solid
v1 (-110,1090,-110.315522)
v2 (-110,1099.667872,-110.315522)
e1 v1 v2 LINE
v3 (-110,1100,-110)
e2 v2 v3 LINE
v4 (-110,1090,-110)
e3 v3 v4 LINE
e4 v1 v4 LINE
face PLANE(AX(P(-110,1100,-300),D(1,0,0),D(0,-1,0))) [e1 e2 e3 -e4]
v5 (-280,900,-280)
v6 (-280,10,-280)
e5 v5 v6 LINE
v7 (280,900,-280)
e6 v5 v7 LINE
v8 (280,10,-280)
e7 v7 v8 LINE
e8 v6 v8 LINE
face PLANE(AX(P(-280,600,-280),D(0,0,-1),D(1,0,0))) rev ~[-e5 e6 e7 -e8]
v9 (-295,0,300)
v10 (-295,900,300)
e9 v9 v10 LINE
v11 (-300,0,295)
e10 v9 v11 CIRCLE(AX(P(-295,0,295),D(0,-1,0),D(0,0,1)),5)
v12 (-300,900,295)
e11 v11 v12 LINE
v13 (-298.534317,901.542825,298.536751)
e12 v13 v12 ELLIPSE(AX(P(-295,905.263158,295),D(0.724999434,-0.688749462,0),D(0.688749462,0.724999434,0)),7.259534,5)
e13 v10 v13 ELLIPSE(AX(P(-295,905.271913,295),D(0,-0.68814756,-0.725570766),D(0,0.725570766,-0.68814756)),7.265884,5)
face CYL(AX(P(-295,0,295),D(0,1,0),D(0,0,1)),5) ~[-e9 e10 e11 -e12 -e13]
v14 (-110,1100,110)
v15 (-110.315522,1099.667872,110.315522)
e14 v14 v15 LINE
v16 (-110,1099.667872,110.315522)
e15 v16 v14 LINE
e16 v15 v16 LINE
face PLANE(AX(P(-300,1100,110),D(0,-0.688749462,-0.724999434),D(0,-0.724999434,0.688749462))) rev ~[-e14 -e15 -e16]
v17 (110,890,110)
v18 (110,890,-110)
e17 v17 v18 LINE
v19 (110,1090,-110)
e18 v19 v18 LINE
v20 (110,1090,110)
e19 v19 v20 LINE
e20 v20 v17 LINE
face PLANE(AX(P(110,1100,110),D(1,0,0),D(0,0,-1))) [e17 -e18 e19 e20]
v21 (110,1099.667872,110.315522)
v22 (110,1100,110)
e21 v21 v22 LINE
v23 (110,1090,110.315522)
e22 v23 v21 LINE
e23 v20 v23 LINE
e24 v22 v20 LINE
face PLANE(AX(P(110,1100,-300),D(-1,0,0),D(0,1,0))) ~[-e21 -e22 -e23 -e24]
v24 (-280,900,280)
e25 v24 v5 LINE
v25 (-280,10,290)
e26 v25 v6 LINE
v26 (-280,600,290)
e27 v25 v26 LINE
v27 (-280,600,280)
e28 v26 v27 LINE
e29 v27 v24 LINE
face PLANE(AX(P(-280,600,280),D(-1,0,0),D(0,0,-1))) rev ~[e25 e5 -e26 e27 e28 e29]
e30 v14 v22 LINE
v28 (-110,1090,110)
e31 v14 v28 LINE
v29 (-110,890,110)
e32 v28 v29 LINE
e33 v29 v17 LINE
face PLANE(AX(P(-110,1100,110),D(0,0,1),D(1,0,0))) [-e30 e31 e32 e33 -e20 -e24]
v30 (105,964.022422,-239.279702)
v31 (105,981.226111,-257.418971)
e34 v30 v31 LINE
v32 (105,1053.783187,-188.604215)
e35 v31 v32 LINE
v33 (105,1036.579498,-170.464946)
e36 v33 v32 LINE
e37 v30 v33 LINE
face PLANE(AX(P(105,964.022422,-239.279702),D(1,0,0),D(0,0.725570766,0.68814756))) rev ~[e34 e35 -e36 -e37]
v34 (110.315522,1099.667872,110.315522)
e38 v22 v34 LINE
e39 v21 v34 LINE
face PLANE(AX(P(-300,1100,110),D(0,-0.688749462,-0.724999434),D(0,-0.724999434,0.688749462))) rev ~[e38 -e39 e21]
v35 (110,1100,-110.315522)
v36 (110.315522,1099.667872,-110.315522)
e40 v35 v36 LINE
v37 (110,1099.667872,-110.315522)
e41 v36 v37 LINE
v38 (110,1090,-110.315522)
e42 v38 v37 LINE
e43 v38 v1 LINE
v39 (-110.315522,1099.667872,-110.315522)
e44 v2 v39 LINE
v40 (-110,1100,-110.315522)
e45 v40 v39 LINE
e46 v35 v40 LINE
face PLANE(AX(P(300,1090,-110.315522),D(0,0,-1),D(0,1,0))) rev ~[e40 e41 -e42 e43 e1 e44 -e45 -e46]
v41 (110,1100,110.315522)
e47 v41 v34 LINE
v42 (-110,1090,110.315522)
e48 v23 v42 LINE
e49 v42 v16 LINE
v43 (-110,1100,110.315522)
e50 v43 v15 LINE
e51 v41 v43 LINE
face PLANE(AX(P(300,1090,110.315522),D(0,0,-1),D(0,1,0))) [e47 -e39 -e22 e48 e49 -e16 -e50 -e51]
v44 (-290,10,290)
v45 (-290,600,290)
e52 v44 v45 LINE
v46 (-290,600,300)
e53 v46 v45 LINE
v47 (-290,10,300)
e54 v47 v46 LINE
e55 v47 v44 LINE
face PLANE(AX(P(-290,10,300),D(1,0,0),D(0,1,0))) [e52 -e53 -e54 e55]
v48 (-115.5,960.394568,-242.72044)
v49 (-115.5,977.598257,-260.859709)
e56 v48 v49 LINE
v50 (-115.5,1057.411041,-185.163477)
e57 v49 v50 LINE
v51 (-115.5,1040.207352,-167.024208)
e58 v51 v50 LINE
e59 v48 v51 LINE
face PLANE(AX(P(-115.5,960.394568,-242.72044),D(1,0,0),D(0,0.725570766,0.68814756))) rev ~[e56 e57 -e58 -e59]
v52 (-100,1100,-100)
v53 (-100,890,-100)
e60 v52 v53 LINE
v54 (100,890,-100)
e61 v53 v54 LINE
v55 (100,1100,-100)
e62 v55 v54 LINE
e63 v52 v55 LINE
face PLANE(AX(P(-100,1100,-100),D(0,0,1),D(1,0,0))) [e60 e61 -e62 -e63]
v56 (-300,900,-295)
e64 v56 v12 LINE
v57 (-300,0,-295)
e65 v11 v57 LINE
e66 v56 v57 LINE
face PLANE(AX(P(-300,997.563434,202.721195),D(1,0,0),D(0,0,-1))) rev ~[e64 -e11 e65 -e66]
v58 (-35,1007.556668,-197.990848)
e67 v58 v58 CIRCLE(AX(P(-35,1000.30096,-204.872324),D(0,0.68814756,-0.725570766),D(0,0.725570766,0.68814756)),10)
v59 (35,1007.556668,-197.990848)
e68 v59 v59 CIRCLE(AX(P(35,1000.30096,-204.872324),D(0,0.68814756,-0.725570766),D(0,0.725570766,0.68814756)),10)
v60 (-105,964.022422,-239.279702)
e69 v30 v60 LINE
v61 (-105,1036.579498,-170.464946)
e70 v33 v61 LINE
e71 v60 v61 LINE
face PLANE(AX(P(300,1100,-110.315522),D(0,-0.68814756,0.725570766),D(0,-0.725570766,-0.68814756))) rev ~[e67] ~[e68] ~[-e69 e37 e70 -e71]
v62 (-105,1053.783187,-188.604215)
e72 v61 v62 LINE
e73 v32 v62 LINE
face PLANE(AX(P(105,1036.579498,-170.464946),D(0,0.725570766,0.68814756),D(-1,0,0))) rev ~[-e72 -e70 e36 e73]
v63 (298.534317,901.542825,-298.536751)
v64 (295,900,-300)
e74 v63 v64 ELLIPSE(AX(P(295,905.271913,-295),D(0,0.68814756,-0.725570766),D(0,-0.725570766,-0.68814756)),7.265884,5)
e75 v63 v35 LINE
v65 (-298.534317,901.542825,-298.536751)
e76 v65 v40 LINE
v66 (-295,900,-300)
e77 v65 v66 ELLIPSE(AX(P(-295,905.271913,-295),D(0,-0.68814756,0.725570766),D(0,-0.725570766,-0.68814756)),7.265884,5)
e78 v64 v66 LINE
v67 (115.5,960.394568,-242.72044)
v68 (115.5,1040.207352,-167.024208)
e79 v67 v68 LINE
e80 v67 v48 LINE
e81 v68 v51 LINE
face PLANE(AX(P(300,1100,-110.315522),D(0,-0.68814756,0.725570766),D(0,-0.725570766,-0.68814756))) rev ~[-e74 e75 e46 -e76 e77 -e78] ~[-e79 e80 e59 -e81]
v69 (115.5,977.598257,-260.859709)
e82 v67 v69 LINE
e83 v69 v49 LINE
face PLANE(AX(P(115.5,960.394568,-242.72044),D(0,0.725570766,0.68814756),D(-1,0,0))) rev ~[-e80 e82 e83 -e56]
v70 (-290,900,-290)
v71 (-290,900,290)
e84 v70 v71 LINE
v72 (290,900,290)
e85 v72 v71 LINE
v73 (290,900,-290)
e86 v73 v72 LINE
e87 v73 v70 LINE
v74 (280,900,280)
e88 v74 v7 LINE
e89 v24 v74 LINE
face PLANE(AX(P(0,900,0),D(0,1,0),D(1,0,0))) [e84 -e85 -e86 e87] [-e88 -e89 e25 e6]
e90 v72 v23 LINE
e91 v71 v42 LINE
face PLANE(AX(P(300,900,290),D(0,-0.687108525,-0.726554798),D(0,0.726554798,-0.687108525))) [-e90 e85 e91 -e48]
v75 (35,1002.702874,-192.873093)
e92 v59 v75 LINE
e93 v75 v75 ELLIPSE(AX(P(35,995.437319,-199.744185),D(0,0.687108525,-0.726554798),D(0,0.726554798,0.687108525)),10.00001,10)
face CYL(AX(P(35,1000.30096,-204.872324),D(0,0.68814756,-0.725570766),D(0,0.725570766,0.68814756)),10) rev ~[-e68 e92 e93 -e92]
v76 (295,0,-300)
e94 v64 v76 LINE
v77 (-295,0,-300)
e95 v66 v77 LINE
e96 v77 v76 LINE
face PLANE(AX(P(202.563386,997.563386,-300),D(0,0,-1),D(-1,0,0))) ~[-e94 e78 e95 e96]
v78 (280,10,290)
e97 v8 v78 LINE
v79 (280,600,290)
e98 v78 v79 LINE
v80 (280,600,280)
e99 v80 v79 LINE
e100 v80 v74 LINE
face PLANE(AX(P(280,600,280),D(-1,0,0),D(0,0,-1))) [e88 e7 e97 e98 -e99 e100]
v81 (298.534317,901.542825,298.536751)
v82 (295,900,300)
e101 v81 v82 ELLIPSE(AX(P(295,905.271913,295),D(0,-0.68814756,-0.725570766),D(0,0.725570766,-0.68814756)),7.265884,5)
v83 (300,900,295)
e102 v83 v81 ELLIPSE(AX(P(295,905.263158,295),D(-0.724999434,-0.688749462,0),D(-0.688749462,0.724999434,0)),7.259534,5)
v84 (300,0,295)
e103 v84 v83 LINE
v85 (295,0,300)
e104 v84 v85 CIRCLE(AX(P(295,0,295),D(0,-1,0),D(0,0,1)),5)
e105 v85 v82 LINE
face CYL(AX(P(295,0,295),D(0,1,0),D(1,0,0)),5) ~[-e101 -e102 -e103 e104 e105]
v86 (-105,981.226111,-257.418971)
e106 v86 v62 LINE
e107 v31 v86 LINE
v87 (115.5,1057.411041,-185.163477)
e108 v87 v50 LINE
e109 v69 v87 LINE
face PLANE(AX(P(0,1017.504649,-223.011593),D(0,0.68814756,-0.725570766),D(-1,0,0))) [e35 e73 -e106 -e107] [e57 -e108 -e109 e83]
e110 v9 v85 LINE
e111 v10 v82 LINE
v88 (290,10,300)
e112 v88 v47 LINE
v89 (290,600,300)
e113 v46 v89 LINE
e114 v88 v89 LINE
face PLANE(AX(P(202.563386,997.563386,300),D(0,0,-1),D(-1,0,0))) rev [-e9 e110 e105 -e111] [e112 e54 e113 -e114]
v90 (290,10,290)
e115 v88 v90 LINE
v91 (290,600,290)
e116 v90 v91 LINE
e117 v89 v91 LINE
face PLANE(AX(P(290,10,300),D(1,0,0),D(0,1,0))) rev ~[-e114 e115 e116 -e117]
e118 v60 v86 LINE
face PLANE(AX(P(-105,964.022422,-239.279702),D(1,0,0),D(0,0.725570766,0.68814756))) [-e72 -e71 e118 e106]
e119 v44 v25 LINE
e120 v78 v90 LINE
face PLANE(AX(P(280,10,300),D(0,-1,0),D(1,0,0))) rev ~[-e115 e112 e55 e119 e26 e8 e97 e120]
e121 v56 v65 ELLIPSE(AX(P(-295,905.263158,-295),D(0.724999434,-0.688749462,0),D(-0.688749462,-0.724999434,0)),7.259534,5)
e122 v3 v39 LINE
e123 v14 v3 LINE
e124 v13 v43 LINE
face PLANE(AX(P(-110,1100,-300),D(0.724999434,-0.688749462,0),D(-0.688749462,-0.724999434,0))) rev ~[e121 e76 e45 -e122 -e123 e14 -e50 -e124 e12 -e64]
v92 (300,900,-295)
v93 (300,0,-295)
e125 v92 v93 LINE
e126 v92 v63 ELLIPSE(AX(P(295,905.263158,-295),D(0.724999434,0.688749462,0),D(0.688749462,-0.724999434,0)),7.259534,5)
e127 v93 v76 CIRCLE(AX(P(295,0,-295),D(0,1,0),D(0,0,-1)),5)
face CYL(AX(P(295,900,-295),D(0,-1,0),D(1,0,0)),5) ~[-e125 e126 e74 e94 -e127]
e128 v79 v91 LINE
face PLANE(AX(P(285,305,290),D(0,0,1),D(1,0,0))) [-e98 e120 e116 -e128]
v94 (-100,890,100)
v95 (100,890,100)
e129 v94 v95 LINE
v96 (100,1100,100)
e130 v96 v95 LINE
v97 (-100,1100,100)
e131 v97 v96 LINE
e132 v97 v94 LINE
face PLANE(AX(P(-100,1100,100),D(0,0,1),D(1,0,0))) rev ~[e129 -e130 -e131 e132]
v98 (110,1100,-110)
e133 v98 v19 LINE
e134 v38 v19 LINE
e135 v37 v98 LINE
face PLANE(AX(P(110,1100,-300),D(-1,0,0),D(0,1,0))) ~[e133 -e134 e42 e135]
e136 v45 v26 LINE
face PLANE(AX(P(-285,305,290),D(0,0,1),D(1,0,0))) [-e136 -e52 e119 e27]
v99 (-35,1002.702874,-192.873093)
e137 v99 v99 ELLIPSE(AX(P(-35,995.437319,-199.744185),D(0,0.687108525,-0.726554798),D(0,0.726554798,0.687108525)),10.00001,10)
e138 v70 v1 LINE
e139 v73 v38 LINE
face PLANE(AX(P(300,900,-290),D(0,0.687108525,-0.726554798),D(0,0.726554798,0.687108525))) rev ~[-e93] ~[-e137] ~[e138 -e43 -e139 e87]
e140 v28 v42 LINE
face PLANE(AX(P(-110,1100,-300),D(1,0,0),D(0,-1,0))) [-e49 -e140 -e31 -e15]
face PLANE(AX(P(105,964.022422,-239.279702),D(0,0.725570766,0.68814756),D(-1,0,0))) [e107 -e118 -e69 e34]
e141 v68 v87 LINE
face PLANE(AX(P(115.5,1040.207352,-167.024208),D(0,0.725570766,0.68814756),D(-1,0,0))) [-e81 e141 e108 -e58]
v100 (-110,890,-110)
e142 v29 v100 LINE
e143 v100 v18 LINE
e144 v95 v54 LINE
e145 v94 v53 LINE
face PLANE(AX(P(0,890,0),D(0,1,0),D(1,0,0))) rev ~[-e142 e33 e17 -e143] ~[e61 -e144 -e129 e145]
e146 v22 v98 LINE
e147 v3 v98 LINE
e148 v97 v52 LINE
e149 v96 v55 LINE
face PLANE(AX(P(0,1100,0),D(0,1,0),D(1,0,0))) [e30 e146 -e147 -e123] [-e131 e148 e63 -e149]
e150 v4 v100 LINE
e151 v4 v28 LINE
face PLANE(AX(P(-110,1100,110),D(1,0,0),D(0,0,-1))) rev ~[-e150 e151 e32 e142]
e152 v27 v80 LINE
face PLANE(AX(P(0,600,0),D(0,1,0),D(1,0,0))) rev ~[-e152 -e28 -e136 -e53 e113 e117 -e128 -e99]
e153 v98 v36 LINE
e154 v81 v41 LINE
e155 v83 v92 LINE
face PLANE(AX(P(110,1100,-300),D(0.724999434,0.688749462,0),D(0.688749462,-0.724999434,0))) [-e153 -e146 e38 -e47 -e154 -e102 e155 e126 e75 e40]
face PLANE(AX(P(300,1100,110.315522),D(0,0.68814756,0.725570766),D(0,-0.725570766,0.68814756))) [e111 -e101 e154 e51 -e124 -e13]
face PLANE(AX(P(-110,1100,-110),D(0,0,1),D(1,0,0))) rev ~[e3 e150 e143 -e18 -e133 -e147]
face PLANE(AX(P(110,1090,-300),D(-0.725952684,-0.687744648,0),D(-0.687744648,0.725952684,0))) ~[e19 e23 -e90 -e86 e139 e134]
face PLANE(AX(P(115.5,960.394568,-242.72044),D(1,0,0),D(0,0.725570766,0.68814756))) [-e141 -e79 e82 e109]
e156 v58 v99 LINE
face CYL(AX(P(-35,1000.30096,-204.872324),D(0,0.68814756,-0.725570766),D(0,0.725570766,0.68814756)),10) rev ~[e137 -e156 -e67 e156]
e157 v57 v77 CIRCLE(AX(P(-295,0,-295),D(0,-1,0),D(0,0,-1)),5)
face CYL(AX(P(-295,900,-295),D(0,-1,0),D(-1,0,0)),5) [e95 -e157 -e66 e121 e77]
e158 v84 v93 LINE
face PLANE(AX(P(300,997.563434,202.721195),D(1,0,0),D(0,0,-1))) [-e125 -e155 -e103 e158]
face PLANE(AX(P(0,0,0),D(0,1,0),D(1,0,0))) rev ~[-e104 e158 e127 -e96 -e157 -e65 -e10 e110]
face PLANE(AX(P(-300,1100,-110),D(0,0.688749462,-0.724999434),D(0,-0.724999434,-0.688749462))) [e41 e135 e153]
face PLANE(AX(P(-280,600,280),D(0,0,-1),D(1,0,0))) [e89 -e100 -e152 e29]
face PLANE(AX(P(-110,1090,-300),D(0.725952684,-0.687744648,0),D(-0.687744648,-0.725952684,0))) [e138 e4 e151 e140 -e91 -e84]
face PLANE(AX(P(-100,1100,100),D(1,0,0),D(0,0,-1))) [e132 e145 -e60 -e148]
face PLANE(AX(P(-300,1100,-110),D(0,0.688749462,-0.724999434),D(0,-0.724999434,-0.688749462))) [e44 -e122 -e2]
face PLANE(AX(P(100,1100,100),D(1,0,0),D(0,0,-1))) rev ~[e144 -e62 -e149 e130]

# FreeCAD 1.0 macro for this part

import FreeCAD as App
import Part
import Sketcher


def edges_at(feature, points):
    """Names of the edges that pass closest to the given points."""
    edges = feature.Shape.Edges
    near = lambda p: min(range(len(edges)), key=lambda i: edges[i].distToShape(Part.Vertex(*p))[0])
    return sorted({f"Edge{near(p) + 1}" for p in points})

doc = App.newDocument("Part")
body = doc.addObject("PartDesign::Body", "Body")

# Sketch on XZ plane
sketch1 = body.newObject("Sketcher::SketchObject", "Sketch")
sketch1.AttachmentSupport = (doc.getObject("XZ_Plane"), [""])
sketch1.MapMode = "FlatFace"
sketch1.addGeometry([
    Part.LineSegment(App.Vector(-300, -300, 0), App.Vector(-300, 300, 0)),
    Part.LineSegment(App.Vector(-300, 300, 0), App.Vector(300, 300, 0)),
    Part.LineSegment(App.Vector(300, 300, 0), App.Vector(300, -300, 0)),
    Part.LineSegment(App.Vector(300, -300, 0), App.Vector(-300, -300, 0)),
], False)
sketch1.addConstraint([
    Sketcher.Constraint("Coincident", 0, 2, 1, 1),
    Sketcher.Constraint("Coincident", 1, 2, 2, 1),
    Sketcher.Constraint("Coincident", 2, 2, 3, 1),
    Sketcher.Constraint("Coincident", 3, 2, 0, 1),
    Sketcher.Constraint("Vertical", 0),
    Sketcher.Constraint("Horizontal", 1),
    Sketcher.Constraint("Vertical", 2),
    Sketcher.Constraint("Horizontal", 3),
    Sketcher.Constraint("Symmetric", 0, 2, 2, 2, -1, 1),
    Sketcher.Constraint("Equal", 3, 0),
    Sketcher.Constraint("DistanceX", 1, 1, 1, 2, 600.0),
])
pad1 = body.newObject("PartDesign::Pad", "Pad")
pad1.Profile = sketch1
pad1.Length = 10
pad1.Reversed = True

# Sketch on XZ plane
sketch2 = body.newObject("Sketcher::SketchObject", "Sketch001")
sketch2.AttachmentSupport = (doc.getObject("XZ_Plane"), [""])
sketch2.MapMode = "FlatFace"
sketch2.AttachmentOffset = App.Placement(App.Vector(0, 0, -10), App.Rotation())
sketch2.addGeometry([
    Part.LineSegment(App.Vector(-300, -300, 0), App.Vector(-300, 300, 0)),  # 0
    Part.LineSegment(App.Vector(-300, 300, 0), App.Vector(300, 300, 0)),  # 1
    Part.LineSegment(App.Vector(300, 300, 0), App.Vector(300, -300, 0)),  # 2
    Part.LineSegment(App.Vector(300, -300, 0), App.Vector(-300, -300, 0)),  # 3
    Part.LineSegment(App.Vector(280, 280, 0), App.Vector(-280, 280, 0)),  # 4
    Part.LineSegment(App.Vector(-280, 280, 0), App.Vector(-280, -280, 0)),  # 5
    Part.LineSegment(App.Vector(-280, -280, 0), App.Vector(280, -280, 0)),  # 6
    Part.LineSegment(App.Vector(280, -280, 0), App.Vector(280, 280, 0)),  # 7
], False)
sketch2.addConstraint([
    Sketcher.Constraint("Coincident", 0, 2, 1, 1),
    Sketcher.Constraint("Coincident", 1, 2, 2, 1),
    Sketcher.Constraint("Coincident", 2, 2, 3, 1),
    Sketcher.Constraint("Coincident", 3, 2, 0, 1),
    Sketcher.Constraint("Coincident", 4, 2, 5, 1),
    Sketcher.Constraint("Coincident", 5, 2, 6, 1),
    Sketcher.Constraint("Coincident", 6, 2, 7, 1),
    Sketcher.Constraint("Coincident", 7, 2, 4, 1),
    Sketcher.Constraint("Vertical", 0),
    Sketcher.Constraint("Horizontal", 1),
    Sketcher.Constraint("Vertical", 2),
    Sketcher.Constraint("Horizontal", 3),
    Sketcher.Constraint("Horizontal", 4),
    Sketcher.Constraint("Vertical", 5),
    Sketcher.Constraint("Horizontal", 6),
    Sketcher.Constraint("Vertical", 7),
    Sketcher.Constraint("Symmetric", 0, 2, 2, 2, -1, 1),
    Sketcher.Constraint("Symmetric", 4, 2, 6, 2, -1, 1),
    Sketcher.Constraint("Equal", 3, 0),
    Sketcher.Constraint("Equal", 6, 5),
    Sketcher.Constraint("DistanceX", 1, 1, 1, 2, 600.0),
    Sketcher.Constraint("DistanceX", 4, 2, 4, 1, 560.0),
])
pad2 = body.newObject("PartDesign::Pad", "Pad001")
pad2.Profile = sketch2
pad2.Length = 590
pad2.Reversed = True

# Sketch on XZ plane
sketch3 = body.newObject("Sketcher::SketchObject", "Sketch002")
sketch3.AttachmentSupport = (doc.getObject("XZ_Plane"), [""])
sketch3.MapMode = "FlatFace"
sketch3.AttachmentOffset = App.Placement(App.Vector(0, 0, -600), App.Rotation())
sketch3.addGeometry([
    Part.LineSegment(App.Vector(-280, 280, 0), App.Vector(-280, 300, 0)),
    Part.LineSegment(App.Vector(-280, 300, 0), App.Vector(280, 300, 0)),
    Part.LineSegment(App.Vector(280, 300, 0), App.Vector(280, 280, 0)),
    Part.LineSegment(App.Vector(280, 280, 0), App.Vector(-280, 280, 0)),
], False)
sketch3.addConstraint([
    Sketcher.Constraint("Coincident", 0, 2, 1, 1),
    Sketcher.Constraint("Coincident", 1, 2, 2, 1),
    Sketcher.Constraint("Coincident", 2, 2, 3, 1),
    Sketcher.Constraint("Coincident", 3, 2, 0, 1),
    Sketcher.Constraint("Vertical", 0),
    Sketcher.Constraint("Horizontal", 1),
    Sketcher.Constraint("Vertical", 2),
    Sketcher.Constraint("Horizontal", 3),
    Sketcher.Constraint("DistanceX", 1, 1, 1, 2, 560.0),
    Sketcher.Constraint("DistanceY", 0, 1, 0, 2, 20.0),
    Sketcher.Constraint("DistanceX", 0, 2, -1, 1, 280.0),
    Sketcher.Constraint("DistanceY", -1, 1, 0, 2, 300.0),
])
pocket1 = body.newObject("PartDesign::Pocket", "Pocket")
pocket1.Profile = sketch3
pocket1.Length = 590
pocket1.Reversed = True

# Sketch on XZ plane
sketch4 = body.newObject("Sketcher::SketchObject", "Sketch003")
sketch4.AttachmentSupport = (doc.getObject("XZ_Plane"), [""])
sketch4.MapMode = "FlatFace"
sketch4.AttachmentOffset = App.Placement(App.Vector(0, 0, -600), App.Rotation())
sketch4.addGeometry([
    Part.LineSegment(App.Vector(-300, -300, 0), App.Vector(-300, 300, 0)),  # 0
    Part.LineSegment(App.Vector(-300, 300, 0), App.Vector(300, 300, 0)),  # 1
    Part.LineSegment(App.Vector(300, 300, 0), App.Vector(300, -300, 0)),  # 2
    Part.LineSegment(App.Vector(300, -300, 0), App.Vector(-300, -300, 0)),  # 3
    Part.LineSegment(App.Vector(280, 280, 0), App.Vector(-280, 280, 0)),  # 4
    Part.LineSegment(App.Vector(-280, 280, 0), App.Vector(-280, -280, 0)),  # 5
    Part.LineSegment(App.Vector(-280, -280, 0), App.Vector(280, -280, 0)),  # 6
    Part.LineSegment(App.Vector(280, -280, 0), App.Vector(280, 280, 0)),  # 7
], False)
sketch4.addConstraint([
    Sketcher.Constraint("Coincident", 0, 2, 1, 1),
    Sketcher.Constraint("Coincident", 1, 2, 2, 1),
    Sketcher.Constraint("Coincident", 2, 2, 3, 1),
    Sketcher.Constraint("Coincident", 3, 2, 0, 1),
    Sketcher.Constraint("Coincident", 4, 2, 5, 1),
    Sketcher.Constraint("Coincident", 5, 2, 6, 1),
    Sketcher.Constraint("Coincident", 6, 2, 7, 1),
    Sketcher.Constraint("Coincident", 7, 2, 4, 1),
    Sketcher.Constraint("Vertical", 0),
    Sketcher.Constraint("Horizontal", 1),
    Sketcher.Constraint("Vertical", 2),
    Sketcher.Constraint("Horizontal", 3),
    Sketcher.Constraint("Horizontal", 4),
    Sketcher.Constraint("Vertical", 5),
    Sketcher.Constraint("Horizontal", 6),
    Sketcher.Constraint("Vertical", 7),
    Sketcher.Constraint("Symmetric", 0, 2, 2, 2, -1, 1),
    Sketcher.Constraint("Symmetric", 4, 2, 6, 2, -1, 1),
    Sketcher.Constraint("Equal", 3, 0),
    Sketcher.Constraint("Equal", 6, 5),
    Sketcher.Constraint("DistanceX", 1, 1, 1, 2, 600.0),
    Sketcher.Constraint("DistanceX", 4, 2, 4, 1, 560.0),
])
pad3 = body.newObject("PartDesign::Pad", "Pad002")
pad3.Profile = sketch4
pad3.Length = 300
pad3.Reversed = True

# Sketch on XY plane
sketch5 = body.newObject("Sketcher::SketchObject", "Sketch004")
sketch5.AttachmentSupport = (doc.getObject("XY_Plane"), [""])
sketch5.MapMode = "FlatFace"
sketch5.AttachmentOffset = App.Placement(App.Vector(0, 0, 300), App.Rotation())
sketch5.addGeometry([
    Part.LineSegment(App.Vector(280, 600, 0), App.Vector(280, 10, 0)),  # 0
    Part.LineSegment(App.Vector(280, 10, 0), App.Vector(290, 10, 0)),  # 1
    Part.LineSegment(App.Vector(290, 10, 0), App.Vector(290, 600, 0)),  # 2
    Part.LineSegment(App.Vector(290, 600, 0), App.Vector(280, 600, 0)),  # 3
    Part.LineSegment(App.Vector(-290, 600, 0), App.Vector(-290, 10, 0)),  # 4
    Part.LineSegment(App.Vector(-290, 10, 0), App.Vector(-280, 10, 0)),  # 5
    Part.LineSegment(App.Vector(-280, 10, 0), App.Vector(-280, 600, 0)),  # 6
    Part.LineSegment(App.Vector(-280, 600, 0), App.Vector(-290, 600, 0)),  # 7
], False)
sketch5.addConstraint([
    Sketcher.Constraint("Coincident", 0, 2, 1, 1),
    Sketcher.Constraint("Coincident", 1, 2, 2, 1),
    Sketcher.Constraint("Coincident", 2, 2, 3, 1),
    Sketcher.Constraint("Coincident", 3, 2, 0, 1),
    Sketcher.Constraint("Coincident", 4, 2, 5, 1),
    Sketcher.Constraint("Coincident", 5, 2, 6, 1),
    Sketcher.Constraint("Coincident", 6, 2, 7, 1),
    Sketcher.Constraint("Coincident", 7, 2, 4, 1),
    Sketcher.Constraint("Vertical", 0),
    Sketcher.Constraint("Horizontal", 1),
    Sketcher.Constraint("Vertical", 2),
    Sketcher.Constraint("Horizontal", 3),
    Sketcher.Constraint("Vertical", 4),
    Sketcher.Constraint("Horizontal", 5),
    Sketcher.Constraint("Vertical", 6),
    Sketcher.Constraint("Horizontal", 7),
    Sketcher.Constraint("Symmetric", 1, 2, 4, 2, -2),
    Sketcher.Constraint("Symmetric", 3, 2, 6, 2, -2),
    Sketcher.Constraint("DistanceX", 1, 1, 1, 2, 10.0),
    Sketcher.Constraint("DistanceY", 0, 2, 0, 1, 590.0),
    Sketcher.Constraint("DistanceX", -1, 1, 0, 2, 280.0),
    Sketcher.Constraint("DistanceY", -1, 1, 0, 2, 10.0),
])
pocket2 = body.newObject("PartDesign::Pocket", "Pocket001")
pocket2.Profile = sketch5
pocket2.Length = 10
body2 = doc.addObject("PartDesign::Body", "Body001")

# Sketch on XZ plane
sketch6 = body2.newObject("Sketcher::SketchObject", "Sketch005")
sketch6.AttachmentSupport = (doc.getObject("XZ_Plane001"), [""])
sketch6.MapMode = "FlatFace"
sketch6.AttachmentOffset = App.Placement(App.Vector(0, 0, -1100), App.Rotation())
sketch6.addGeometry([
    Part.LineSegment(App.Vector(-110, -110, 0), App.Vector(-110, 110, 0)),  # 0
    Part.LineSegment(App.Vector(-110, 110, 0), App.Vector(110, 110, 0)),  # 1
    Part.LineSegment(App.Vector(110, 110, 0), App.Vector(110, -110, 0)),  # 2
    Part.LineSegment(App.Vector(110, -110, 0), App.Vector(-110, -110, 0)),  # 3
    Part.LineSegment(App.Vector(100, 100, 0), App.Vector(-100, 100, 0)),  # 4
    Part.LineSegment(App.Vector(-100, 100, 0), App.Vector(-100, -100, 0)),  # 5
    Part.LineSegment(App.Vector(-100, -100, 0), App.Vector(100, -100, 0)),  # 6
    Part.LineSegment(App.Vector(100, -100, 0), App.Vector(100, 100, 0)),  # 7
], False)
sketch6.addConstraint([
    Sketcher.Constraint("Coincident", 0, 2, 1, 1),
    Sketcher.Constraint("Coincident", 1, 2, 2, 1),
    Sketcher.Constraint("Coincident", 2, 2, 3, 1),
    Sketcher.Constraint("Coincident", 3, 2, 0, 1),
    Sketcher.Constraint("Coincident", 4, 2, 5, 1),
    Sketcher.Constraint("Coincident", 5, 2, 6, 1),
    Sketcher.Constraint("Coincident", 6, 2, 7, 1),
    Sketcher.Constraint("Coincident", 7, 2, 4, 1),
    Sketcher.Constraint("Vertical", 0),
    Sketcher.Constraint("Horizontal", 1),
    Sketcher.Constraint("Vertical", 2),
    Sketcher.Constraint("Horizontal", 3),
    Sketcher.Constraint("Horizontal", 4),
    Sketcher.Constraint("Vertical", 5),
    Sketcher.Constraint("Horizontal", 6),
    Sketcher.Constraint("Vertical", 7),
    Sketcher.Constraint("Symmetric", 0, 2, 2, 2, -1, 1),
    Sketcher.Constraint("Symmetric", 4, 2, 6, 2, -1, 1),
    Sketcher.Constraint("Equal", 3, 0),
    Sketcher.Constraint("Equal", 6, 5),
    Sketcher.Constraint("DistanceX", 1, 1, 1, 2, 220.0),
    Sketcher.Constraint("DistanceX", 4, 2, 4, 1, 200.0),
])
pad4 = body2.newObject("PartDesign::Pad", "Pad003")
pad4.Profile = sketch6
pad4.Length = 210
body.AllowCompound = True
doc.recompute()

boolean = body.newObject("PartDesign::Boolean", "Boolean")
boolean.Type = "Fuse"
boolean.addObjects([body2])

# Sketch on XY plane
sketch7 = body.newObject("Sketcher::SketchObject", "Sketch006")
sketch7.AttachmentSupport = (doc.getObject("XY_Plane"), [""])
sketch7.MapMode = "FlatFace"
sketch7.AttachmentOffset = App.Placement(App.Vector(0, 0, -300), App.Rotation())
sketch7.addGeometry([
    Part.LineSegment(App.Vector(-300, 900, 0), App.Vector(-110, 1100, 0)),
    Part.LineSegment(App.Vector(-110, 1100, 0), App.Vector(-110, 1090, 0)),
    Part.LineSegment(App.Vector(-110, 1090, 0), App.Vector(-290, 900, 0)),
    Part.LineSegment(App.Vector(-290, 900, 0), App.Vector(-300, 900, 0)),
], False)
sketch7.addConstraint([
    Sketcher.Constraint("Coincident", 0, 2, 1, 1),
    Sketcher.Constraint("Coincident", 1, 2, 2, 1),
    Sketcher.Constraint("Coincident", 2, 2, 3, 1),
    Sketcher.Constraint("Coincident", 3, 2, 0, 1),
    Sketcher.Constraint("Vertical", 1),
    Sketcher.Constraint("Horizontal", 3),
    Sketcher.Constraint("Equal", 3, 1),
    Sketcher.Constraint("DistanceX", 3, 2, 3, 1, 10.0),
    Sketcher.Constraint("DistanceX", 0, 2, -1, 1, 110.0),
    Sketcher.Constraint("DistanceY", -1, 1, 0, 2, 1100.0),
    Sketcher.Constraint("DistanceX", 2, 2, -1, 1, 290.0),
    Sketcher.Constraint("DistanceY", -1, 1, 2, 2, 900.0),
])
pad5 = body.newObject("PartDesign::Pad", "Pad004")
pad5.Profile = sketch7
pad5.Length = 600
doc.recompute()

mirrored = body.newObject("PartDesign::Mirrored", "Mirrored")
mirrored.Originals = [pad5]
mirrored.MirrorPlane = (doc.getObject("YZ_Plane"), [""])
body.Tip = mirrored

# Sketch on YZ plane
sketch8 = body.newObject("Sketcher::SketchObject", "Sketch007")
sketch8.AttachmentSupport = (doc.getObject("YZ_Plane"), [""])
sketch8.MapMode = "FlatFace"
sketch8.AttachmentOffset = App.Placement(App.Vector(0, 0, -300), App.Rotation())
sketch8.addGeometry([
    Part.LineSegment(App.Vector(1100, -300, 0), App.Vector(900, -300, 0)),  # 0
    Part.LineSegment(App.Vector(900, -300, 0), App.Vector(1100, -110, 0)),  # 1
    Part.LineSegment(App.Vector(1100, -110, 0), App.Vector(1100, -300, 0)),  # 2
    Part.LineSegment(App.Vector(1100, 300, 0), App.Vector(1100, 110, 0)),  # 3
    Part.LineSegment(App.Vector(1100, 110, 0), App.Vector(900, 300, 0)),  # 4
    Part.LineSegment(App.Vector(900, 300, 0), App.Vector(1100, 300, 0)),  # 5
], False)
sketch8.addConstraint([
    Sketcher.Constraint("Coincident", 0, 2, 1, 1),
    Sketcher.Constraint("Coincident", 1, 2, 2, 1),
    Sketcher.Constraint("Coincident", 2, 2, 0, 1),
    Sketcher.Constraint("Coincident", 3, 2, 4, 1),
    Sketcher.Constraint("Coincident", 4, 2, 5, 1),
    Sketcher.Constraint("Coincident", 5, 2, 3, 1),
    Sketcher.Constraint("Horizontal", 0),
    Sketcher.Constraint("Vertical", 2),
    Sketcher.Constraint("Vertical", 3),
    Sketcher.Constraint("Horizontal", 5),
    Sketcher.Constraint("Symmetric", 1, 2, 3, 2, -1),
    Sketcher.Constraint("Symmetric", 0, 2, 4, 2, -1),
    Sketcher.Constraint("DistanceX", 0, 2, 0, 1, 200.0),
    Sketcher.Constraint("DistanceY", 2, 2, 2, 1, 190.0),
    Sketcher.Constraint("DistanceX", -1, 1, 0, 2, 900.0),
    Sketcher.Constraint("DistanceY", 0, 2, -1, 1, 300.0),
])
pocket3 = body.newObject("PartDesign::Pocket", "Pocket002")
pocket3.Profile = sketch8
pocket3.Length = 600
pocket3.Reversed = True

# Sketch on YZ plane
sketch9 = body.newObject("Sketcher::SketchObject", "Sketch008")
sketch9.AttachmentSupport = (doc.getObject("YZ_Plane"), [""])
sketch9.MapMode = "FlatFace"
sketch9.AttachmentOffset = App.Placement(App.Vector(0, 0, 300), App.Rotation())
sketch9.addGeometry([
    Part.LineSegment(App.Vector(900, 300, 0), App.Vector(900, 290, 0)),  # 0
    Part.LineSegment(App.Vector(900, 290, 0), App.Vector(1090, 110, 0)),  # 1
    Part.LineSegment(App.Vector(1090, 110, 0), App.Vector(1100, 110, 0)),  # 2
    Part.LineSegment(App.Vector(1100, 110, 0), App.Vector(900, 300, 0)),  # 3
    Part.LineSegment(App.Vector(900, -290, 0), App.Vector(900, -300, 0)),  # 4
    Part.LineSegment(App.Vector(900, -300, 0), App.Vector(1100, -110, 0)),  # 5
    Part.LineSegment(App.Vector(1100, -110, 0), App.Vector(1090, -110, 0)),  # 6
    Part.LineSegment(App.Vector(1090, -110, 0), App.Vector(900, -290, 0)),  # 7
], False)
sketch9.addConstraint([
    Sketcher.Constraint("Coincident", 0, 2, 1, 1),
    Sketcher.Constraint("Coincident", 1, 2, 2, 1),
    Sketcher.Constraint("Coincident", 2, 2, 3, 1),
    Sketcher.Constraint("Coincident", 3, 2, 0, 1),
    Sketcher.Constraint("Coincident", 4, 2, 5, 1),
    Sketcher.Constraint("Coincident", 5, 2, 6, 1),
    Sketcher.Constraint("Coincident", 6, 2, 7, 1),
    Sketcher.Constraint("Coincident", 7, 2, 4, 1),
    Sketcher.Constraint("Vertical", 0),
    Sketcher.Constraint("Horizontal", 2),
    Sketcher.Constraint("Vertical", 4),
    Sketcher.Constraint("Horizontal", 6),
    Sketcher.Constraint("Symmetric", 3, 2, 4, 2, -1),
    Sketcher.Constraint("Symmetric", 2, 2, 5, 2, -1),
    Sketcher.Constraint("Vertical", 1, 2, 6, 2),
    Sketcher.Constraint("Equal", 6, 0),
    Sketcher.Constraint("Equal", 0, 4),
    Sketcher.Constraint("DistanceX", 2, 1, 2, 2, 10.0),
    Sketcher.Constraint("DistanceX", -1, 1, 0, 2, 900.0),
    Sketcher.Constraint("DistanceY", -1, 1, 0, 2, 290.0),
    Sketcher.Constraint("DistanceX", -1, 1, 1, 2, 1090.0),
    Sketcher.Constraint("Distance", 1, 261.508148),
])
pad6 = body.newObject("PartDesign::Pad", "Pad005")
pad6.Profile = sketch9
pad6.Length = 600
pad6.Reversed = True

# Sketch on XY plane
sketch10 = body.newObject("Sketcher::SketchObject", "Sketch009")
sketch10.AttachmentSupport = (doc.getObject("XY_Plane"), [""])
sketch10.MapMode = "FlatFace"
sketch10.AttachmentOffset = App.Placement(App.Vector(0, 0, -300), App.Rotation())
sketch10.addGeometry([
    Part.LineSegment(App.Vector(300, 900, 0), App.Vector(110, 1100, 0)),  # 0
    Part.LineSegment(App.Vector(110, 1100, 0), App.Vector(300, 1100, 0)),  # 1
    Part.LineSegment(App.Vector(300, 1100, 0), App.Vector(300, 900, 0)),  # 2
    Part.LineSegment(App.Vector(-300, 1100, 0), App.Vector(-110, 1100, 0)),  # 3
    Part.LineSegment(App.Vector(-110, 1100, 0), App.Vector(-300, 900, 0)),  # 4
    Part.LineSegment(App.Vector(-300, 900, 0), App.Vector(-300, 1100, 0)),  # 5
], False)
sketch10.addConstraint([
    Sketcher.Constraint("Coincident", 0, 2, 1, 1),
    Sketcher.Constraint("Coincident", 1, 2, 2, 1),
    Sketcher.Constraint("Coincident", 2, 2, 0, 1),
    Sketcher.Constraint("Coincident", 3, 2, 4, 1),
    Sketcher.Constraint("Coincident", 4, 2, 5, 1),
    Sketcher.Constraint("Coincident", 5, 2, 3, 1),
    Sketcher.Constraint("Horizontal", 1),
    Sketcher.Constraint("Vertical", 2),
    Sketcher.Constraint("Horizontal", 3),
    Sketcher.Constraint("Vertical", 5),
    Sketcher.Constraint("Symmetric", 0, 2, 3, 2, -2),
    Sketcher.Constraint("Symmetric", 2, 2, 4, 2, -2),
    Sketcher.Constraint("DistanceX", 1, 1, 1, 2, 190.0),
    Sketcher.Constraint("DistanceY", 2, 2, 2, 1, 200.0),
    Sketcher.Constraint("DistanceX", -1, 1, 0, 2, 110.0),
    Sketcher.Constraint("DistanceY", -1, 1, 0, 2, 1100.0),
])
pocket4 = body.newObject("PartDesign::Pocket", "Pocket003")
pocket4.Profile = sketch10
pocket4.Length = 600
pocket4.Reversed = True

# Sketch on an angled plane
sketch11 = body.newObject("Sketcher::SketchObject", "Sketch010")
sketch11.Placement = App.Placement(App.Vector(0, 575.982283, -607.305657), App.Rotation(App.Vector(-1, 0, 0), App.Vector(0, 0.725570766, 0.68814756), App.Vector(0, 0.68814756, -0.725570766), "ZXY"))
sketch11.addGeometry([
    Part.LineSegment(App.Vector(-116, 640, 0), App.Vector(-116, 530, 0)),  # 0
    Part.LineSegment(App.Vector(-116, 530, 0), App.Vector(116, 530, 0)),  # 1
    Part.LineSegment(App.Vector(116, 530, 0), App.Vector(116, 640, 0)),  # 2
    Part.LineSegment(App.Vector(116, 640, 0), App.Vector(-116, 640, 0)),  # 3
    Part.LineSegment(App.Vector(105, 535, 0), App.Vector(-105, 535, 0)),  # 4
    Part.LineSegment(App.Vector(-105, 535, 0), App.Vector(-105, 635, 0)),  # 5
    Part.LineSegment(App.Vector(-105, 635, 0), App.Vector(105, 635, 0)),  # 6
    Part.LineSegment(App.Vector(105, 635, 0), App.Vector(105, 535, 0)),  # 7
], False)
sketch11.addConstraint([
    Sketcher.Constraint("Coincident", 0, 2, 1, 1),
    Sketcher.Constraint("Coincident", 1, 2, 2, 1),
    Sketcher.Constraint("Coincident", 2, 2, 3, 1),
    Sketcher.Constraint("Coincident", 3, 2, 0, 1),
    Sketcher.Constraint("Coincident", 4, 2, 5, 1),
    Sketcher.Constraint("Coincident", 5, 2, 6, 1),
    Sketcher.Constraint("Coincident", 6, 2, 7, 1),
    Sketcher.Constraint("Coincident", 7, 2, 4, 1),
    Sketcher.Constraint("Vertical", 0),
    Sketcher.Constraint("Horizontal", 1),
    Sketcher.Constraint("Vertical", 2),
    Sketcher.Constraint("Horizontal", 3),
    Sketcher.Constraint("Horizontal", 4),
    Sketcher.Constraint("Vertical", 5),
    Sketcher.Constraint("Horizontal", 6),
    Sketcher.Constraint("Vertical", 7),
    Sketcher.Constraint("DistanceX", 1, 1, 1, 2, 231.0),
    Sketcher.Constraint("DistanceX", 4, 2, 4, 1, 210.0),
    Sketcher.Constraint("DistanceY", 0, 2, 0, 1, 110.0),
    Sketcher.Constraint("DistanceY", 5, 1, 5, 2, 100.0),
    Sketcher.Constraint("DistanceX", 4, 2, -1, 1, 105.0),
    Sketcher.Constraint("DistanceY", 0, 2, 4, 2, 5.0),
    Sketcher.Constraint("DistanceX", 0, 2, -1, 1, 115.5),
    Sketcher.Constraint("DistanceY", -1, 1, 0, 2, 529.806744),
])
pad7 = body.newObject("PartDesign::Pad", "Pad006")
pad7.Profile = sketch11
pad7.Length = 25

# Sketch on an angled plane
sketch12 = body.newObject("Sketcher::SketchObject", "Sketch011")
sketch12.Placement = App.Placement(App.Vector(0, 575.982283, -607.305657), App.Rotation(App.Vector(-1, 0, 0), App.Vector(0, 0.725570766, 0.68814756), App.Vector(0, 0.68814756, -0.725570766), "ZXY"))
sketch12.addGeometry([
    Part.Circle(App.Vector(-35, 585, 0), App.Vector(0, 0, 1), 10),
    Part.Circle(App.Vector(35, 585, 0), App.Vector(0, 0, 1), 10),
], False)
sketch12.addConstraint([
    Sketcher.Constraint("Equal", 0, 1),
    Sketcher.Constraint("Symmetric", 0, 3, 1, 3, -2),
    Sketcher.Constraint("Diameter", 0, 20.0),
    Sketcher.Constraint("DistanceX", 0, 3, -1, 1, 35.0),
    Sketcher.Constraint("DistanceY", -1, 1, 0, 3, 584.806744),
])
pocket5 = body.newObject("PartDesign::Pocket", "Pocket004")
pocket5.Profile = sketch12
pocket5.Length = 35
doc.recompute()

fillet = body.newObject("PartDesign::Fillet", "Fillet")
fillet.Base = (pocket5, edges_at(pocket5, [
    (300, 450, 300),
    (-300, 450, 300),
    (-300, 450, -300),
    (300, 450, -300),
]))
fillet.Radius = 5

doc.recompute()
